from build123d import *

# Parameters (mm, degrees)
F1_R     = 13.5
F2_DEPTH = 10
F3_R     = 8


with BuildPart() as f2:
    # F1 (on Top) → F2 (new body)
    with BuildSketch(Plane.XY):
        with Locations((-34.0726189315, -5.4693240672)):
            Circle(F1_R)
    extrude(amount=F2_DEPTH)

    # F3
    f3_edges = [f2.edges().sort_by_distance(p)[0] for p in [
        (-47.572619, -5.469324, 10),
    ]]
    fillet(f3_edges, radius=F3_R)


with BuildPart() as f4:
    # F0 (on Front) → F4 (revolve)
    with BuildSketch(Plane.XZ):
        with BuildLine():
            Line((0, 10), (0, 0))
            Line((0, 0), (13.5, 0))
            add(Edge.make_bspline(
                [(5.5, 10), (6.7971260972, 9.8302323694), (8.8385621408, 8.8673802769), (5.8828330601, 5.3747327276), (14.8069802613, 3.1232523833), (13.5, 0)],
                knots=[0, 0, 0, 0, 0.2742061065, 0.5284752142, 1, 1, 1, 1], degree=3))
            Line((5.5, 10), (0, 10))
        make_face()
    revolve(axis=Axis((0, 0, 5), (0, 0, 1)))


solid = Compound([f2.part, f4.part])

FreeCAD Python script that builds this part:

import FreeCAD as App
import Part
import Sketcher
from FreeCAD import Vector


def edges_at(feature, points):
    """Names of the edges that pass closest to the given points."""
    edges = feature.Shape.Edges
    near = lambda p: min(range(len(edges)), key=lambda i: edges[i].distToShape(Part.Vertex(*p))[0])
    return sorted({f"Edge{near(p) + 1}" for p in points})

doc = App.newDocument("Part")
body = doc.addObject("PartDesign::Body", "Body")

# Sketch on XY plane
sketch1 = body.newObject("Sketcher::SketchObject", "Sketch")
sketch1.AttachmentSupport = (doc.getObject("XY_Plane"), [""])
sketch1.MapMode = "FlatFace"
sketch1.addGeometry(Part.Circle(Vector(-34, -5, 0), Vector(0, 0, 1), 14), False)
sketch1.addConstraint([
    Sketcher.Constraint("Diameter", 0, 27.0),
    Sketcher.Constraint("DistanceX", 0, 3, -1, 1, 34.072619),
    Sketcher.Constraint("DistanceY", 0, 3, -1, 1, 5.469324),
])
pad1 = body.newObject("PartDesign::Pad", "Pad")
pad1.Profile = sketch1
pad1.Length = 10
doc.recompute()

fillet = body.newObject("PartDesign::Fillet", "Fillet")
fillet.Base = (pad1, edges_at(pad1, [(-47.573, -5.469, 10)]))
fillet.Radius = 8
body2 = doc.addObject("PartDesign::Body", "Body001")

# Sketch on XZ plane
sketch2 = body2.newObject("Sketcher::SketchObject", "Sketch001")
sketch2.AttachmentSupport = (doc.getObject("XZ_Plane001"), [""])
sketch2.MapMode = "FlatFace"
sketch2.addGeometry([
    Part.LineSegment(Vector(0, 10, 0), Vector(0, 0, 0)),
    Part.LineSegment(Vector(0, 0, 0), Vector(13.5, 0, 0)),
    Part.BSplineCurve([Vector(5.5, 10, 0), Vector(6.797126, 9.830232, 0), Vector(8.838562, 8.86738, 0), Vector(5.882833, 5.374733, 0), Vector(14.80698, 3.123252, 0), Vector(13.5, 0, 0)], [4, 1, 1, 4], [0, 0.274206106, 0.528475214, 1], False, 3, [1, 1, 1, 1, 1, 1], False),
    Part.LineSegment(Vector(5.5, 10, 0), Vector(0, 10, 0)),
], False)
sketch2.addConstraint([
    Sketcher.Constraint("Block", 2),
    Sketcher.Constraint("Coincident", 0, 2, 1, 1),
    Sketcher.Constraint("Coincident", 1, 2, 2, 2),
    Sketcher.Constraint("Coincident", 2, 1, 3, 1),
    Sketcher.Constraint("Coincident", 3, 2, 0, 1),
    Sketcher.Constraint("Vertical", 0),
    Sketcher.Constraint("Horizontal", 1),
    Sketcher.Constraint("Horizontal", 3),
    Sketcher.Constraint("PointOnObject", 3, 2, -2),
])
revolution = body2.newObject("PartDesign::Revolution", "Revolution")
revolution.Profile = sketch2
revolution.ReferenceAxis = (sketch2, ["V_Axis"])
revolution.Angle = 360

doc.recompute()
